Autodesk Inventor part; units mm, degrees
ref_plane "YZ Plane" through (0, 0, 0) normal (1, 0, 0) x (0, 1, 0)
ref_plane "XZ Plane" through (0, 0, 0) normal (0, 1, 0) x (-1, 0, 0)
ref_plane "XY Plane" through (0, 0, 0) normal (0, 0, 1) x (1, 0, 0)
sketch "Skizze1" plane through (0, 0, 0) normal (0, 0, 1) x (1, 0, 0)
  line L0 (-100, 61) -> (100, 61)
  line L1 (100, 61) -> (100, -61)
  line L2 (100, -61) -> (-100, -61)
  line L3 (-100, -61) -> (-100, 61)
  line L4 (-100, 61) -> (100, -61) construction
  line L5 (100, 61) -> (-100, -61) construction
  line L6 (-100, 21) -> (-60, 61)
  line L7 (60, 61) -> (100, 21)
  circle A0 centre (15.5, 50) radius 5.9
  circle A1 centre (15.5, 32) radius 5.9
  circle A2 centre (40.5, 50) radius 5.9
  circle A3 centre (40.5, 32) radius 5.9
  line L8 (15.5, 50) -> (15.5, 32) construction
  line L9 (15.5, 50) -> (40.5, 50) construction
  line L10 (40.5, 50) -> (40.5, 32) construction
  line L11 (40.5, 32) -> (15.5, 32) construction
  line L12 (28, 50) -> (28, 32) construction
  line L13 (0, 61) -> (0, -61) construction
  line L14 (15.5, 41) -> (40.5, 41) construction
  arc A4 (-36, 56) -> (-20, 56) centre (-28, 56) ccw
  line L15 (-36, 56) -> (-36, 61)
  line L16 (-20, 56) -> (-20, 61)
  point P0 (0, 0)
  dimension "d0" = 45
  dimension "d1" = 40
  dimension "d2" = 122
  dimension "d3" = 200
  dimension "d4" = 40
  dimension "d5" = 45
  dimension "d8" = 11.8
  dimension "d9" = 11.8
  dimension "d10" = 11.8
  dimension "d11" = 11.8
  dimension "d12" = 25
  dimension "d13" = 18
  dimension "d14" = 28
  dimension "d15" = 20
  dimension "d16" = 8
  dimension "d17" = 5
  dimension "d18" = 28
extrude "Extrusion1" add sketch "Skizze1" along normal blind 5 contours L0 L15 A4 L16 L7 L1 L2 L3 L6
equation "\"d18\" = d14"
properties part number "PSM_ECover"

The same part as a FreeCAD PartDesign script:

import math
import FreeCAD as App
import Part
import Sketcher
from FreeCAD import Vector
Q = App.Units.Quantity

doc = App.newDocument("Part")
body = doc.addObject("PartDesign::Body", "Body")

sketch1 = body.newObject("Sketcher::SketchObject", "Sketch")
sketch1.AttachmentSupport = (doc.getObject("XY_Plane"), [""])
sketch1.MapMode = "FlatFace"
sketch1.addGeometry([
    Part.LineSegment(Vector(-36, 61, 0), Vector(-60, 61, 0)),
    Part.LineSegment(Vector(-60, 61, 0), Vector(-100, 21, 0)),
    Part.LineSegment(Vector(-100, 21, 0), Vector(-100, -61, 0)),
    Part.LineSegment(Vector(-100, -61, 0), Vector(100, -61, 0)),
    Part.LineSegment(Vector(100, -61, 0), Vector(100, 21, 0)),
    Part.LineSegment(Vector(100, 21, 0), Vector(60, 61, 0)),
    Part.LineSegment(Vector(60, 61, 0), Vector(-20, 61, 0)),
    Part.LineSegment(Vector(-20, 61, 0), Vector(-20, 56, 0)),
    Part.ArcOfCircle(Part.Circle(Vector(-28, 56, 0), Vector(0, 0, 1), 8), math.radians(180), math.radians(360)),
    Part.LineSegment(Vector(-36, 56, 0), Vector(-36, 61, 0)),
    Part.Circle(Vector(16, 32, 0), Vector(0, 0, 1), 6),
    Part.Circle(Vector(40, 32, 0), Vector(0, 0, 1), 6),
    Part.Circle(Vector(16, 50, 0), Vector(0, 0, 1), 6),
    Part.Circle(Vector(40, 50, 0), Vector(0, 0, 1), 6),
], False)
sketch1.addConstraint([
    Sketcher.Constraint("Coincident", 0, 2, 1, 1),
    Sketcher.Constraint("Coincident", 1, 2, 2, 1),
    Sketcher.Constraint("Coincident", 2, 2, 3, 1),
    Sketcher.Constraint("Coincident", 3, 2, 4, 1),
    Sketcher.Constraint("Coincident", 4, 2, 5, 1),
    Sketcher.Constraint("Coincident", 5, 2, 6, 1),
    Sketcher.Constraint("Coincident", 6, 2, 7, 1),
    Sketcher.Constraint("Tangent", 7, 2, 8, 2),
    Sketcher.Constraint("Tangent", 8, 1, 9, 1),
    Sketcher.Constraint("Coincident", 9, 2, 0, 1),
    Sketcher.Constraint("Horizontal", 0),
    Sketcher.Constraint("Vertical", 2),
    Sketcher.Constraint("Horizontal", 3),
    Sketcher.Constraint("Vertical", 4),
    Sketcher.Constraint("Horizontal", 6),
    Sketcher.Constraint("Vertical", 7),
    Sketcher.Constraint("Vertical", 9),
    Sketcher.Constraint("Equal", 10, 11),
    Sketcher.Constraint("Equal", 11, 12),
    Sketcher.Constraint("Equal", 12, 13),
    Sketcher.Constraint("Symmetric", 1, 2, 4, 2, -2),
    Sketcher.Constraint("Symmetric", 0, 2, 5, 2, -2),
    Sketcher.Constraint("Perpendicular", 1, 5),
    Sketcher.Constraint("Horizontal", 10, 3, 11, 3),
    Sketcher.Constraint("Horizontal", 12, 3, 13, 3),
    Sketcher.Constraint("Vertical", 10, 3, 12, 3),
    Sketcher.Constraint("Vertical", 11, 3, 13, 3),
    Sketcher.Constraint("Radius", 8, Q("8 mm")),
    Sketcher.Constraint("Diameter", 10, Q("11.8 mm")),
    Sketcher.Constraint("DistanceX", 3, 1, 3, 2, Q("200 mm")),
    Sketcher.Constraint("DistanceY", 7, 2, 7, 1, Q("5 mm")),
    Sketcher.Constraint("DistanceX", 8, 3, -1, 1, Q("28 mm")),
    Sketcher.Constraint("DistanceX", 10, 3, 11, 3, Q("25 mm")),
    Sketcher.Constraint("DistanceY", 10, 3, 12, 3, Q("18 mm")),
    Sketcher.Constraint("DistanceX", 1, 2, 0, 2, Q("40 mm")),
    Sketcher.Constraint("DistanceY", 2, 2, 0, 2, Q("122 mm")),
    Sketcher.Constraint("DistanceY", -1, 1, 8, 3, Q("56 mm")),
    Sketcher.Constraint("DistanceY", -1, 1, 10, 3, Q("32 mm")),
    Sketcher.Constraint("DistanceX", -1, 1, 10, 3, Q("15.5 mm")),
])
pad1 = body.newObject("PartDesign::Pad", "Pad")
pad1.Profile = sketch1
pad1.Length = 5

doc.recompute()
